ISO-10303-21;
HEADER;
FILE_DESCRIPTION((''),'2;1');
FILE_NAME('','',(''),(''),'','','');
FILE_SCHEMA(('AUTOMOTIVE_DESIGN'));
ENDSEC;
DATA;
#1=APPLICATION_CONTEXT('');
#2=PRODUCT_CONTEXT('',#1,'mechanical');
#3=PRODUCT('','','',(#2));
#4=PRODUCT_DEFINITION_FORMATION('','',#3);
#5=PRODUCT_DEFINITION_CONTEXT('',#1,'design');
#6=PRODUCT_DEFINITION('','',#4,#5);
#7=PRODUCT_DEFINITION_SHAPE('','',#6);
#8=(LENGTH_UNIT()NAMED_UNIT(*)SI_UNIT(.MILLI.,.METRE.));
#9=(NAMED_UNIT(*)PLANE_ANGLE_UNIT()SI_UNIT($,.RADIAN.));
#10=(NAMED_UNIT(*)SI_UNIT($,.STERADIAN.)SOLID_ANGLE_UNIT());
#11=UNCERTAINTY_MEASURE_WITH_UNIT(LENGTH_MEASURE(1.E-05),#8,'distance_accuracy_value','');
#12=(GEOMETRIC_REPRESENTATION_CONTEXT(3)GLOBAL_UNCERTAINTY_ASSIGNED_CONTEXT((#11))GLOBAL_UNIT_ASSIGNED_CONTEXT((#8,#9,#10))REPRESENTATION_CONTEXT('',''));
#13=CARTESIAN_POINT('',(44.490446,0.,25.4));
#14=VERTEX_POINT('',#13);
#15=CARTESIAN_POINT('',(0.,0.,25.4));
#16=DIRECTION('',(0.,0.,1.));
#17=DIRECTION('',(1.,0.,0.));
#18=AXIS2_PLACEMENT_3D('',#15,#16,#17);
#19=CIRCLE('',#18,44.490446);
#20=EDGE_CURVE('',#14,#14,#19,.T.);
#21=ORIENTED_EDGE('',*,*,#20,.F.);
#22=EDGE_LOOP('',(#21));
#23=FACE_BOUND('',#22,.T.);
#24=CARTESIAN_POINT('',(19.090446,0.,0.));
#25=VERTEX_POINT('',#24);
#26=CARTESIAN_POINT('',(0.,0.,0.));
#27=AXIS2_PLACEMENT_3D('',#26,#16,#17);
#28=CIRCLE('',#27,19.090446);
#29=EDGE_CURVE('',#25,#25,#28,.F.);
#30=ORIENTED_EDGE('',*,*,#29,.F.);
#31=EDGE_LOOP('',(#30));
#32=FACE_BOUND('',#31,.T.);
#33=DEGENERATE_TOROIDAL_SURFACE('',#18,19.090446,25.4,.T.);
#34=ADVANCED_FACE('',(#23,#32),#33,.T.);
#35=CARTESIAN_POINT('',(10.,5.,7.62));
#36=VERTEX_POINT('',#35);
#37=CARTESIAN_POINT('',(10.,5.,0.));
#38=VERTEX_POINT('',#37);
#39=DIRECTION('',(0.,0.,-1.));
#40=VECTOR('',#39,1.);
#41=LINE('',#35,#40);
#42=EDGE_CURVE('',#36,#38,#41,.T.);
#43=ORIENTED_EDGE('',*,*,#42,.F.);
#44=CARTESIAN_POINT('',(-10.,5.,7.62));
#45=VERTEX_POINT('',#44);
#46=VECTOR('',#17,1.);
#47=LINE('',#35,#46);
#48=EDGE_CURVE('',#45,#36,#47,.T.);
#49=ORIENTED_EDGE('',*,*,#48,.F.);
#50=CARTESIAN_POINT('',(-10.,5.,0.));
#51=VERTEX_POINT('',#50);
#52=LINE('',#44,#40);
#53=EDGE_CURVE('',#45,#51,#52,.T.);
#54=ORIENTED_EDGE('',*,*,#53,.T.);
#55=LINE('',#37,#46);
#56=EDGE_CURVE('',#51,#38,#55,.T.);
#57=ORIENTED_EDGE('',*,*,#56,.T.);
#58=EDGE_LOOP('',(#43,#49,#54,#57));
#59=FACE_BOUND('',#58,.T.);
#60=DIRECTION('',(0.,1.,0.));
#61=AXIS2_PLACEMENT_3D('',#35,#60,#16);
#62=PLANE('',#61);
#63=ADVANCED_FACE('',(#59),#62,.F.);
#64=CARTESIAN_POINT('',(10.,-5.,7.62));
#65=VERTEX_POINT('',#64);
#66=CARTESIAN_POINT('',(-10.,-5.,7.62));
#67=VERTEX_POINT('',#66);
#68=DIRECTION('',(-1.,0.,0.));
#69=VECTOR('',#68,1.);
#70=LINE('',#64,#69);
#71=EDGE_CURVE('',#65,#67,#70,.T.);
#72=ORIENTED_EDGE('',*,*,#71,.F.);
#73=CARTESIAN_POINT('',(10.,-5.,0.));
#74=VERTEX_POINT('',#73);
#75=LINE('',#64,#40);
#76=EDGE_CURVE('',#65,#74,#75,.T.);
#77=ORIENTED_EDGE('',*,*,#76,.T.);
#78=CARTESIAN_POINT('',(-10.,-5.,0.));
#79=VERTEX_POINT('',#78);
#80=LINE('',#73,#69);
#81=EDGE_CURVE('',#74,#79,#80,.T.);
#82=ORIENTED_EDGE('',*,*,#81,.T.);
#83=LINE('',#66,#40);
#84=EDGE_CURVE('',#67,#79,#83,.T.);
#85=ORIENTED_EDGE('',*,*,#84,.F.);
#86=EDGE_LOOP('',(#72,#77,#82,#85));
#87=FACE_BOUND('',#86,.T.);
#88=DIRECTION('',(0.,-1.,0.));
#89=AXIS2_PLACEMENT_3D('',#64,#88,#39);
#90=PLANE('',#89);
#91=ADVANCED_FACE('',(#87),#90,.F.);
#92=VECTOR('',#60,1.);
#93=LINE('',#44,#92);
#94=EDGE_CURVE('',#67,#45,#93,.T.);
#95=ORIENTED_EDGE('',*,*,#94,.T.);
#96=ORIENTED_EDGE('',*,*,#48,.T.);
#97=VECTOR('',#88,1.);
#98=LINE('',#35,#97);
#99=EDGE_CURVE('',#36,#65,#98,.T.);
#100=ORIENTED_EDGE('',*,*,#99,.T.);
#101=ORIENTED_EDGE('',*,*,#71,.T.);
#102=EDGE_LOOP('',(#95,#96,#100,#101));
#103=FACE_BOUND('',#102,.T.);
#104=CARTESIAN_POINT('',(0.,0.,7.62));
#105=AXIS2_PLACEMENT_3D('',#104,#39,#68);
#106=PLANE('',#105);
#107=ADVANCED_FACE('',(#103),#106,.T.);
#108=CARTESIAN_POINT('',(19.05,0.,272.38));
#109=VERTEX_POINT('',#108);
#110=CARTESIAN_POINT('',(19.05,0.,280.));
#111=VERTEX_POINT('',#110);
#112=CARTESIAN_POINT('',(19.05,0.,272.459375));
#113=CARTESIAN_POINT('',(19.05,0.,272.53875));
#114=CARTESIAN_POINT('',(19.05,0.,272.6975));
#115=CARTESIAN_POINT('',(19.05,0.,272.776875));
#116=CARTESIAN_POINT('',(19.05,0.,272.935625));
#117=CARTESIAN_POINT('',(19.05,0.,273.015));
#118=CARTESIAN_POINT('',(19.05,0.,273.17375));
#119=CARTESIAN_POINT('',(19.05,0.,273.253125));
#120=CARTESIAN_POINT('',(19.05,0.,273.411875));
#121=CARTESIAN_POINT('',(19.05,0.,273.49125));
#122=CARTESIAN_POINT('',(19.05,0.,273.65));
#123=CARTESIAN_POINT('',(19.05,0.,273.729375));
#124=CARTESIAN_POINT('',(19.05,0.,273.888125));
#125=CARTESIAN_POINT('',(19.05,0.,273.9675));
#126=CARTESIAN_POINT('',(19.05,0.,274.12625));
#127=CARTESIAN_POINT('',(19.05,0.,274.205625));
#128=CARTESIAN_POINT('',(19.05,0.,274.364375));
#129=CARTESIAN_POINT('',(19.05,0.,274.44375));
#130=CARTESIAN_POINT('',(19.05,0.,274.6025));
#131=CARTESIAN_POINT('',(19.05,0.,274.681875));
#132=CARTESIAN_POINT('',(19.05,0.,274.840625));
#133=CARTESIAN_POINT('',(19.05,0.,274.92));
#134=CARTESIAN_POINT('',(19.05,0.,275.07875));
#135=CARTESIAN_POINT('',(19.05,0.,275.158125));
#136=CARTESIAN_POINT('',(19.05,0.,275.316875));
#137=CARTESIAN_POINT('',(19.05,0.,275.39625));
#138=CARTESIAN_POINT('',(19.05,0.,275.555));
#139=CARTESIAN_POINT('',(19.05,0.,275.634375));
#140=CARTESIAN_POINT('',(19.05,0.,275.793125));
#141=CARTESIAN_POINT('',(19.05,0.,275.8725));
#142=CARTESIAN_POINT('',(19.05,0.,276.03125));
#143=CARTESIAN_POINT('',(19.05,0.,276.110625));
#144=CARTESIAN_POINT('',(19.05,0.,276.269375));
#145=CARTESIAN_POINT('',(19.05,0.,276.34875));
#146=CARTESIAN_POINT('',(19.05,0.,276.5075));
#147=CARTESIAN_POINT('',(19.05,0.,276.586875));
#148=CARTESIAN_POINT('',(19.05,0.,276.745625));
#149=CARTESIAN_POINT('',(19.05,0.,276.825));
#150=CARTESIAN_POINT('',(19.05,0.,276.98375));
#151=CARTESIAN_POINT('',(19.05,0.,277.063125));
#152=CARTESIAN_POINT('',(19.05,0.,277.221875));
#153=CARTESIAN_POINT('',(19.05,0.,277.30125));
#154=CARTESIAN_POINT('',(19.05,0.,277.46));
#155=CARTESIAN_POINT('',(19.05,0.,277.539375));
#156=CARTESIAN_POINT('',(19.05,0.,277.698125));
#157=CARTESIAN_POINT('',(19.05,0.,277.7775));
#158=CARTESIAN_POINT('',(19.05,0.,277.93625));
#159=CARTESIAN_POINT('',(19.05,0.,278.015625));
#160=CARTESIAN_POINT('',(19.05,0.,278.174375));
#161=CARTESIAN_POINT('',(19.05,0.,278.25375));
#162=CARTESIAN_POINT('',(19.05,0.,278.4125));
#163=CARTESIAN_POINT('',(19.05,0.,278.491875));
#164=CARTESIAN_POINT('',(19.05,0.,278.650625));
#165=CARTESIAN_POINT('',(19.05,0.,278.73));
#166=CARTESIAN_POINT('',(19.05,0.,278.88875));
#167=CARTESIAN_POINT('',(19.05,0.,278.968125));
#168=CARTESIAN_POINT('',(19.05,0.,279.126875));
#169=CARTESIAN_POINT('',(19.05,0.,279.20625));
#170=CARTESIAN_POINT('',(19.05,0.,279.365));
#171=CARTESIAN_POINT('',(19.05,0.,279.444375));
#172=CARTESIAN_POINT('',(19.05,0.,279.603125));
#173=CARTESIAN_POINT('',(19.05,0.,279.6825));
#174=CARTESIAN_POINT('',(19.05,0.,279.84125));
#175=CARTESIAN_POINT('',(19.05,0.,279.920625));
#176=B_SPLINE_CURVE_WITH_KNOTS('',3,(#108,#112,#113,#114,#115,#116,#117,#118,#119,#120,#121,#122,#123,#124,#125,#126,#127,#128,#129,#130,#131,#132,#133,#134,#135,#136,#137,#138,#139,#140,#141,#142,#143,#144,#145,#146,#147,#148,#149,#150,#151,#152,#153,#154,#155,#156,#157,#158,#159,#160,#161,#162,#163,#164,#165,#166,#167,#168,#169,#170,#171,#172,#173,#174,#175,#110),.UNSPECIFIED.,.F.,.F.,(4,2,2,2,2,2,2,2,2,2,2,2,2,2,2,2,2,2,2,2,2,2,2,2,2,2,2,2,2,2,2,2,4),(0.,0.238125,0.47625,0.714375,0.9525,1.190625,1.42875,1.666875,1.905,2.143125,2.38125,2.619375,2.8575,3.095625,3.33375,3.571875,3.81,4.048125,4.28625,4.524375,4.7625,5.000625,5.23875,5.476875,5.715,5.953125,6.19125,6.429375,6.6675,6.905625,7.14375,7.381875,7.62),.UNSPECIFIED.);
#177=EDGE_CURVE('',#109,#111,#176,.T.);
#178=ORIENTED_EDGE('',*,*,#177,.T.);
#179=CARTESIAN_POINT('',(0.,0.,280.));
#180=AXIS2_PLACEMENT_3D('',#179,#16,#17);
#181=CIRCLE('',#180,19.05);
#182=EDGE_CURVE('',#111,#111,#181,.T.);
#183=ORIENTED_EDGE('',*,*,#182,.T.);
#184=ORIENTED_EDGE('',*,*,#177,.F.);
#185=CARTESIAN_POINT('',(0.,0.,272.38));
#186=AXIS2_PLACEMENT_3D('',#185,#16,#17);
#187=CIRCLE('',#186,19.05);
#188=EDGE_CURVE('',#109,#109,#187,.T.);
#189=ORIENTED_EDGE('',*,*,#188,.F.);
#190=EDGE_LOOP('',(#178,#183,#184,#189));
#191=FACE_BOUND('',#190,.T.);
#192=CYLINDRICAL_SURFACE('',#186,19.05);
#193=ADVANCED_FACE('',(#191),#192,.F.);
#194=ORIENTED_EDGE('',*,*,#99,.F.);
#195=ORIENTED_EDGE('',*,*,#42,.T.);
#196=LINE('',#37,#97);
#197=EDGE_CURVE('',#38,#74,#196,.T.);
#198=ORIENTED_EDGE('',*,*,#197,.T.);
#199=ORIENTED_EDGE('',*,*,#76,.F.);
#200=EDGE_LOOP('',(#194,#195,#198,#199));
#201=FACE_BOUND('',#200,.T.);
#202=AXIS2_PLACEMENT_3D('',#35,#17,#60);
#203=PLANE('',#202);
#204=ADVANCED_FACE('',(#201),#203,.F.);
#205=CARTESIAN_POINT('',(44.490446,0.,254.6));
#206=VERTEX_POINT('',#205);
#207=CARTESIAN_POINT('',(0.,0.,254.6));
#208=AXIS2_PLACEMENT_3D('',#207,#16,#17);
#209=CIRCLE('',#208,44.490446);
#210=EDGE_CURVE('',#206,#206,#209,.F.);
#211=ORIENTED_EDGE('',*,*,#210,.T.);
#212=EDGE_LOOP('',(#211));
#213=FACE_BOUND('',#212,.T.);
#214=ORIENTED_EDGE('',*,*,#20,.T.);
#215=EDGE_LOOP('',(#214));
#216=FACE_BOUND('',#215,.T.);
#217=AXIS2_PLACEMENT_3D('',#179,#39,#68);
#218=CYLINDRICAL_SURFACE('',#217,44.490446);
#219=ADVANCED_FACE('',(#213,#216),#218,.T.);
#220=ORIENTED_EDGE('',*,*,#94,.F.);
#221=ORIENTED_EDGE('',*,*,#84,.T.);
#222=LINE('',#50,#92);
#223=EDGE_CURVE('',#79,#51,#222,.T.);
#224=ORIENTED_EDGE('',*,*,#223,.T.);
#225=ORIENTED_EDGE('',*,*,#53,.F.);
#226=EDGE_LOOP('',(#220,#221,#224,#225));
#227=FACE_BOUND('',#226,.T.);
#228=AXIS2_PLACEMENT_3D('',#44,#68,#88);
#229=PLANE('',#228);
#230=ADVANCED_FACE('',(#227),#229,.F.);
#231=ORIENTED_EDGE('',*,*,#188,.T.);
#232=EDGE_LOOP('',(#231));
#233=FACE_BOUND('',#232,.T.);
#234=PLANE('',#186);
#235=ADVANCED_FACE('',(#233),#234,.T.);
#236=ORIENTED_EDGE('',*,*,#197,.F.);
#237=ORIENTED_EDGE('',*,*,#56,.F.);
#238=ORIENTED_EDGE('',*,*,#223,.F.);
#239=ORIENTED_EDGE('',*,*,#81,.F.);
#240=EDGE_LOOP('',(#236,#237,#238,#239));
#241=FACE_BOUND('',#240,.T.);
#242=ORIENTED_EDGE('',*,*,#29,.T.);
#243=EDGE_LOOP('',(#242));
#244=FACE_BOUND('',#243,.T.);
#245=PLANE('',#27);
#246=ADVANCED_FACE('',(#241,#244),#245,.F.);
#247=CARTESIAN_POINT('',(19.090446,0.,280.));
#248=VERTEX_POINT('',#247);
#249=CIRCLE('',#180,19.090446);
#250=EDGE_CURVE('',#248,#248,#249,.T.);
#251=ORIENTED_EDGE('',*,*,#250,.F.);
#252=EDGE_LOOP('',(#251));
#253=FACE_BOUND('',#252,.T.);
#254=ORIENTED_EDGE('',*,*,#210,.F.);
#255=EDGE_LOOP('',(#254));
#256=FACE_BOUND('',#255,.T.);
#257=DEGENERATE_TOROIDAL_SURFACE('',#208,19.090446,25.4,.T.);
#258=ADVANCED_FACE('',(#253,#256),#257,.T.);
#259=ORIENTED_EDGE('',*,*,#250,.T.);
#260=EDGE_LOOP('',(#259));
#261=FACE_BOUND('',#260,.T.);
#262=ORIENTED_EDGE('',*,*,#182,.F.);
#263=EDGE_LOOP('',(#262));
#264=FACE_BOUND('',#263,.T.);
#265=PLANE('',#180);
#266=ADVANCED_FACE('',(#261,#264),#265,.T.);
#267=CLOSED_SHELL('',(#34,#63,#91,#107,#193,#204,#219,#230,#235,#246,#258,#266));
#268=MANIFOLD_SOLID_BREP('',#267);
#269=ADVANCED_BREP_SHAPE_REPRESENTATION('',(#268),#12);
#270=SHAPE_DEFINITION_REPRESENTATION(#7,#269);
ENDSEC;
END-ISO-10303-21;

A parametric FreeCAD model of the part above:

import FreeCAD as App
import Part
import Sketcher

V = App.Vector


def edges_at(feature, points):
    """Names of the edges that pass closest to the given points."""
    edges = feature.Shape.Edges
    near = lambda p: min(range(len(edges)), key=lambda i: edges[i].distToShape(Part.Vertex(*p))[0])
    return sorted({f"Edge{near(p) + 1}" for p in points})


def add_polygon(sketch, points):
    """Adds a closed chain of lines whose ends are joined by coincident constraints."""
    first, n = sketch.GeometryCount, len(points)
    for a, b in zip(points, points[1:] + points[:1]):
        sketch.addGeometry(Part.LineSegment(App.Vector(*a, 0), App.Vector(*b, 0)), False)
    for i in range(n):
        sketch.addConstraint(Sketcher.Constraint("Coincident", first + i, 2, first + (i + 1) % n, 1))

doc = App.newDocument("Part")
params = doc.addObject("Spreadsheet::Sheet", "Params")
for row, (alias, value) in enumerate([
    ("pad1_length", "280 mm"),
    ("fillet_radius", "25.4 mm"),
    ("sketch2_width", "20 mm"),
    ("sketch2_height", "10 mm"),
    ("pocket1_length", "7.62 mm"),
    ("sketch3_diameter", "38.1 mm"),
    ("pocket2_length", "7.62 mm"),
], start=1):
    params.set(f"A{row}", alias)
    params.set(f"B{row}", "=" + value)
    params.setAlias(f"B{row}", alias)

body = doc.addObject("PartDesign::Body", "Body")

# Sketch on XY plane
sketch1 = doc.addObject("Sketcher::SketchObject", "Sketch")
body.addObject(sketch1)
sketch1.AttachmentSupport = (doc.XY_Plane, [""])
sketch1.MapMode = "FlatFace"
sketch1.addGeometry(Part.Circle(V(0, 0, 0), V(0, 0, 1), 44), False)
sketch1.addConstraint([
    Sketcher.Constraint("Coincident", 0, 3, -1, 1),
    Sketcher.Constraint("Diameter", 0, 88.980892),
])
pad1 = doc.addObject("PartDesign::Pad", "Pad")
body.addObject(pad1)
pad1.Profile = sketch1
pad1.setExpression("Length", "Params.pad1_length")
doc.recompute()

fillet = doc.addObject("PartDesign::Fillet", "Fillet")
body.addObject(fillet)
fillet.Base = (pad1, edges_at(pad1, [(-44.49, 0, 0), (-44.49, 0, 280)]))
fillet.setExpression("Radius", "Params.fillet_radius")

# Sketch on XY plane
sketch2 = doc.addObject("Sketcher::SketchObject", "Sketch001")
body.addObject(sketch2)
sketch2.AttachmentSupport = (doc.XY_Plane, [""])
sketch2.MapMode = "FlatFace"
add_polygon(sketch2, [(10, 5), (10, -5), (-10, -5), (-10, 5)])  # lines 0-3
sketch2.addConstraint([
    Sketcher.Constraint("Vertical", 0),
    Sketcher.Constraint("Horizontal", 1),
    Sketcher.Constraint("Vertical", 2),
    Sketcher.Constraint("Horizontal", 3),
    Sketcher.Constraint("Symmetric", 0, 2, 2, 2, -1, 1),
    Sketcher.Constraint("DistanceX", 1, 2, 1, 1, 20.0),
    Sketcher.Constraint("DistanceY", 0, 2, 0, 1, 10.0),
])
sketch2.setExpression("Constraints[9]", "Params.sketch2_width")
sketch2.setExpression("Constraints[10]", "Params.sketch2_height")
pocket1 = doc.addObject("PartDesign::Pocket", "Pocket")
body.addObject(pocket1)
pocket1.Profile = sketch2
pocket1.setExpression("Length", "Params.pocket1_length")
pocket1.Reversed = True

# Sketch on XY plane
sketch3 = doc.addObject("Sketcher::SketchObject", "Sketch002")
body.addObject(sketch3)
sketch3.AttachmentSupport = (doc.XY_Plane, [""])
sketch3.MapMode = "FlatFace"
sketch3.AttachmentOffset = App.Placement(V(0, 0, 280), App.Rotation())
sketch3.addGeometry(Part.Circle(V(0, 0, 0), V(0, 0, 1), 19), False)
sketch3.addConstraint([
    Sketcher.Constraint("Coincident", 0, 3, -1, 1),
    Sketcher.Constraint("Diameter", 0, 38.1),
])
sketch3.setExpression("Constraints[1]", "Params.sketch3_diameter")
pocket2 = doc.addObject("PartDesign::Pocket", "Pocket001")
body.addObject(pocket2)
pocket2.Profile = sketch3
pocket2.setExpression("Length", "Params.pocket2_length")

doc.recompute()
